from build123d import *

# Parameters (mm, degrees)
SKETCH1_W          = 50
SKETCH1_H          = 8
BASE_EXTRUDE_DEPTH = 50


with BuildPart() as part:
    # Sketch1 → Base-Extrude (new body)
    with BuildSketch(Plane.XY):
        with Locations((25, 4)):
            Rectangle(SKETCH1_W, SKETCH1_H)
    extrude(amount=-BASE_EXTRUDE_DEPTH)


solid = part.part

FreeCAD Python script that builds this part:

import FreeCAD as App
import Part
import Sketcher

V = App.Vector


def add_polygon(sketch, points):
    """Adds a closed chain of lines whose ends are joined by coincident constraints."""
    first, n = sketch.GeometryCount, len(points)
    for a, b in zip(points, points[1:] + points[:1]):
        sketch.addGeometry(Part.LineSegment(App.Vector(*a, 0), App.Vector(*b, 0)), False)
    for i in range(n):
        sketch.addConstraint(Sketcher.Constraint("Coincident", first + i, 2, first + (i + 1) % n, 1))

doc = App.newDocument("Part")
body = doc.addObject("PartDesign::Body", "Body")

# Sketch on XY plane
sketch1 = doc.addObject("Sketcher::SketchObject", "Sketch")
body.addObject(sketch1)
sketch1.AttachmentSupport = (doc.XY_Plane, [""])
sketch1.MapMode = "FlatFace"
add_polygon(sketch1, [(0, 8), (0, 0), (50, 0), (50, 8)])  # lines 0-3
sketch1.addConstraint(Sketcher.Constraint("Vertical", 0))
sketch1.addConstraint(Sketcher.Constraint("Horizontal", 1))
sketch1.addConstraint(Sketcher.Constraint("Vertical", 2))
sketch1.addConstraint(Sketcher.Constraint("Horizontal", 3))
sketch1.addConstraint(Sketcher.Constraint("Coincident", 0, 2, -1, 1))
sketch1.addConstraint(Sketcher.Constraint("DistanceX", 1, 1, 1, 2, 50.0))
sketch1.addConstraint(Sketcher.Constraint("DistanceY", 0, 2, 0, 1, 8.0))
pad1 = doc.addObject("PartDesign::Pad", "Pad")
body.addObject(pad1)
pad1.Profile = sketch1
pad1.Length = 50
pad1.Reversed = True

doc.recompute()
